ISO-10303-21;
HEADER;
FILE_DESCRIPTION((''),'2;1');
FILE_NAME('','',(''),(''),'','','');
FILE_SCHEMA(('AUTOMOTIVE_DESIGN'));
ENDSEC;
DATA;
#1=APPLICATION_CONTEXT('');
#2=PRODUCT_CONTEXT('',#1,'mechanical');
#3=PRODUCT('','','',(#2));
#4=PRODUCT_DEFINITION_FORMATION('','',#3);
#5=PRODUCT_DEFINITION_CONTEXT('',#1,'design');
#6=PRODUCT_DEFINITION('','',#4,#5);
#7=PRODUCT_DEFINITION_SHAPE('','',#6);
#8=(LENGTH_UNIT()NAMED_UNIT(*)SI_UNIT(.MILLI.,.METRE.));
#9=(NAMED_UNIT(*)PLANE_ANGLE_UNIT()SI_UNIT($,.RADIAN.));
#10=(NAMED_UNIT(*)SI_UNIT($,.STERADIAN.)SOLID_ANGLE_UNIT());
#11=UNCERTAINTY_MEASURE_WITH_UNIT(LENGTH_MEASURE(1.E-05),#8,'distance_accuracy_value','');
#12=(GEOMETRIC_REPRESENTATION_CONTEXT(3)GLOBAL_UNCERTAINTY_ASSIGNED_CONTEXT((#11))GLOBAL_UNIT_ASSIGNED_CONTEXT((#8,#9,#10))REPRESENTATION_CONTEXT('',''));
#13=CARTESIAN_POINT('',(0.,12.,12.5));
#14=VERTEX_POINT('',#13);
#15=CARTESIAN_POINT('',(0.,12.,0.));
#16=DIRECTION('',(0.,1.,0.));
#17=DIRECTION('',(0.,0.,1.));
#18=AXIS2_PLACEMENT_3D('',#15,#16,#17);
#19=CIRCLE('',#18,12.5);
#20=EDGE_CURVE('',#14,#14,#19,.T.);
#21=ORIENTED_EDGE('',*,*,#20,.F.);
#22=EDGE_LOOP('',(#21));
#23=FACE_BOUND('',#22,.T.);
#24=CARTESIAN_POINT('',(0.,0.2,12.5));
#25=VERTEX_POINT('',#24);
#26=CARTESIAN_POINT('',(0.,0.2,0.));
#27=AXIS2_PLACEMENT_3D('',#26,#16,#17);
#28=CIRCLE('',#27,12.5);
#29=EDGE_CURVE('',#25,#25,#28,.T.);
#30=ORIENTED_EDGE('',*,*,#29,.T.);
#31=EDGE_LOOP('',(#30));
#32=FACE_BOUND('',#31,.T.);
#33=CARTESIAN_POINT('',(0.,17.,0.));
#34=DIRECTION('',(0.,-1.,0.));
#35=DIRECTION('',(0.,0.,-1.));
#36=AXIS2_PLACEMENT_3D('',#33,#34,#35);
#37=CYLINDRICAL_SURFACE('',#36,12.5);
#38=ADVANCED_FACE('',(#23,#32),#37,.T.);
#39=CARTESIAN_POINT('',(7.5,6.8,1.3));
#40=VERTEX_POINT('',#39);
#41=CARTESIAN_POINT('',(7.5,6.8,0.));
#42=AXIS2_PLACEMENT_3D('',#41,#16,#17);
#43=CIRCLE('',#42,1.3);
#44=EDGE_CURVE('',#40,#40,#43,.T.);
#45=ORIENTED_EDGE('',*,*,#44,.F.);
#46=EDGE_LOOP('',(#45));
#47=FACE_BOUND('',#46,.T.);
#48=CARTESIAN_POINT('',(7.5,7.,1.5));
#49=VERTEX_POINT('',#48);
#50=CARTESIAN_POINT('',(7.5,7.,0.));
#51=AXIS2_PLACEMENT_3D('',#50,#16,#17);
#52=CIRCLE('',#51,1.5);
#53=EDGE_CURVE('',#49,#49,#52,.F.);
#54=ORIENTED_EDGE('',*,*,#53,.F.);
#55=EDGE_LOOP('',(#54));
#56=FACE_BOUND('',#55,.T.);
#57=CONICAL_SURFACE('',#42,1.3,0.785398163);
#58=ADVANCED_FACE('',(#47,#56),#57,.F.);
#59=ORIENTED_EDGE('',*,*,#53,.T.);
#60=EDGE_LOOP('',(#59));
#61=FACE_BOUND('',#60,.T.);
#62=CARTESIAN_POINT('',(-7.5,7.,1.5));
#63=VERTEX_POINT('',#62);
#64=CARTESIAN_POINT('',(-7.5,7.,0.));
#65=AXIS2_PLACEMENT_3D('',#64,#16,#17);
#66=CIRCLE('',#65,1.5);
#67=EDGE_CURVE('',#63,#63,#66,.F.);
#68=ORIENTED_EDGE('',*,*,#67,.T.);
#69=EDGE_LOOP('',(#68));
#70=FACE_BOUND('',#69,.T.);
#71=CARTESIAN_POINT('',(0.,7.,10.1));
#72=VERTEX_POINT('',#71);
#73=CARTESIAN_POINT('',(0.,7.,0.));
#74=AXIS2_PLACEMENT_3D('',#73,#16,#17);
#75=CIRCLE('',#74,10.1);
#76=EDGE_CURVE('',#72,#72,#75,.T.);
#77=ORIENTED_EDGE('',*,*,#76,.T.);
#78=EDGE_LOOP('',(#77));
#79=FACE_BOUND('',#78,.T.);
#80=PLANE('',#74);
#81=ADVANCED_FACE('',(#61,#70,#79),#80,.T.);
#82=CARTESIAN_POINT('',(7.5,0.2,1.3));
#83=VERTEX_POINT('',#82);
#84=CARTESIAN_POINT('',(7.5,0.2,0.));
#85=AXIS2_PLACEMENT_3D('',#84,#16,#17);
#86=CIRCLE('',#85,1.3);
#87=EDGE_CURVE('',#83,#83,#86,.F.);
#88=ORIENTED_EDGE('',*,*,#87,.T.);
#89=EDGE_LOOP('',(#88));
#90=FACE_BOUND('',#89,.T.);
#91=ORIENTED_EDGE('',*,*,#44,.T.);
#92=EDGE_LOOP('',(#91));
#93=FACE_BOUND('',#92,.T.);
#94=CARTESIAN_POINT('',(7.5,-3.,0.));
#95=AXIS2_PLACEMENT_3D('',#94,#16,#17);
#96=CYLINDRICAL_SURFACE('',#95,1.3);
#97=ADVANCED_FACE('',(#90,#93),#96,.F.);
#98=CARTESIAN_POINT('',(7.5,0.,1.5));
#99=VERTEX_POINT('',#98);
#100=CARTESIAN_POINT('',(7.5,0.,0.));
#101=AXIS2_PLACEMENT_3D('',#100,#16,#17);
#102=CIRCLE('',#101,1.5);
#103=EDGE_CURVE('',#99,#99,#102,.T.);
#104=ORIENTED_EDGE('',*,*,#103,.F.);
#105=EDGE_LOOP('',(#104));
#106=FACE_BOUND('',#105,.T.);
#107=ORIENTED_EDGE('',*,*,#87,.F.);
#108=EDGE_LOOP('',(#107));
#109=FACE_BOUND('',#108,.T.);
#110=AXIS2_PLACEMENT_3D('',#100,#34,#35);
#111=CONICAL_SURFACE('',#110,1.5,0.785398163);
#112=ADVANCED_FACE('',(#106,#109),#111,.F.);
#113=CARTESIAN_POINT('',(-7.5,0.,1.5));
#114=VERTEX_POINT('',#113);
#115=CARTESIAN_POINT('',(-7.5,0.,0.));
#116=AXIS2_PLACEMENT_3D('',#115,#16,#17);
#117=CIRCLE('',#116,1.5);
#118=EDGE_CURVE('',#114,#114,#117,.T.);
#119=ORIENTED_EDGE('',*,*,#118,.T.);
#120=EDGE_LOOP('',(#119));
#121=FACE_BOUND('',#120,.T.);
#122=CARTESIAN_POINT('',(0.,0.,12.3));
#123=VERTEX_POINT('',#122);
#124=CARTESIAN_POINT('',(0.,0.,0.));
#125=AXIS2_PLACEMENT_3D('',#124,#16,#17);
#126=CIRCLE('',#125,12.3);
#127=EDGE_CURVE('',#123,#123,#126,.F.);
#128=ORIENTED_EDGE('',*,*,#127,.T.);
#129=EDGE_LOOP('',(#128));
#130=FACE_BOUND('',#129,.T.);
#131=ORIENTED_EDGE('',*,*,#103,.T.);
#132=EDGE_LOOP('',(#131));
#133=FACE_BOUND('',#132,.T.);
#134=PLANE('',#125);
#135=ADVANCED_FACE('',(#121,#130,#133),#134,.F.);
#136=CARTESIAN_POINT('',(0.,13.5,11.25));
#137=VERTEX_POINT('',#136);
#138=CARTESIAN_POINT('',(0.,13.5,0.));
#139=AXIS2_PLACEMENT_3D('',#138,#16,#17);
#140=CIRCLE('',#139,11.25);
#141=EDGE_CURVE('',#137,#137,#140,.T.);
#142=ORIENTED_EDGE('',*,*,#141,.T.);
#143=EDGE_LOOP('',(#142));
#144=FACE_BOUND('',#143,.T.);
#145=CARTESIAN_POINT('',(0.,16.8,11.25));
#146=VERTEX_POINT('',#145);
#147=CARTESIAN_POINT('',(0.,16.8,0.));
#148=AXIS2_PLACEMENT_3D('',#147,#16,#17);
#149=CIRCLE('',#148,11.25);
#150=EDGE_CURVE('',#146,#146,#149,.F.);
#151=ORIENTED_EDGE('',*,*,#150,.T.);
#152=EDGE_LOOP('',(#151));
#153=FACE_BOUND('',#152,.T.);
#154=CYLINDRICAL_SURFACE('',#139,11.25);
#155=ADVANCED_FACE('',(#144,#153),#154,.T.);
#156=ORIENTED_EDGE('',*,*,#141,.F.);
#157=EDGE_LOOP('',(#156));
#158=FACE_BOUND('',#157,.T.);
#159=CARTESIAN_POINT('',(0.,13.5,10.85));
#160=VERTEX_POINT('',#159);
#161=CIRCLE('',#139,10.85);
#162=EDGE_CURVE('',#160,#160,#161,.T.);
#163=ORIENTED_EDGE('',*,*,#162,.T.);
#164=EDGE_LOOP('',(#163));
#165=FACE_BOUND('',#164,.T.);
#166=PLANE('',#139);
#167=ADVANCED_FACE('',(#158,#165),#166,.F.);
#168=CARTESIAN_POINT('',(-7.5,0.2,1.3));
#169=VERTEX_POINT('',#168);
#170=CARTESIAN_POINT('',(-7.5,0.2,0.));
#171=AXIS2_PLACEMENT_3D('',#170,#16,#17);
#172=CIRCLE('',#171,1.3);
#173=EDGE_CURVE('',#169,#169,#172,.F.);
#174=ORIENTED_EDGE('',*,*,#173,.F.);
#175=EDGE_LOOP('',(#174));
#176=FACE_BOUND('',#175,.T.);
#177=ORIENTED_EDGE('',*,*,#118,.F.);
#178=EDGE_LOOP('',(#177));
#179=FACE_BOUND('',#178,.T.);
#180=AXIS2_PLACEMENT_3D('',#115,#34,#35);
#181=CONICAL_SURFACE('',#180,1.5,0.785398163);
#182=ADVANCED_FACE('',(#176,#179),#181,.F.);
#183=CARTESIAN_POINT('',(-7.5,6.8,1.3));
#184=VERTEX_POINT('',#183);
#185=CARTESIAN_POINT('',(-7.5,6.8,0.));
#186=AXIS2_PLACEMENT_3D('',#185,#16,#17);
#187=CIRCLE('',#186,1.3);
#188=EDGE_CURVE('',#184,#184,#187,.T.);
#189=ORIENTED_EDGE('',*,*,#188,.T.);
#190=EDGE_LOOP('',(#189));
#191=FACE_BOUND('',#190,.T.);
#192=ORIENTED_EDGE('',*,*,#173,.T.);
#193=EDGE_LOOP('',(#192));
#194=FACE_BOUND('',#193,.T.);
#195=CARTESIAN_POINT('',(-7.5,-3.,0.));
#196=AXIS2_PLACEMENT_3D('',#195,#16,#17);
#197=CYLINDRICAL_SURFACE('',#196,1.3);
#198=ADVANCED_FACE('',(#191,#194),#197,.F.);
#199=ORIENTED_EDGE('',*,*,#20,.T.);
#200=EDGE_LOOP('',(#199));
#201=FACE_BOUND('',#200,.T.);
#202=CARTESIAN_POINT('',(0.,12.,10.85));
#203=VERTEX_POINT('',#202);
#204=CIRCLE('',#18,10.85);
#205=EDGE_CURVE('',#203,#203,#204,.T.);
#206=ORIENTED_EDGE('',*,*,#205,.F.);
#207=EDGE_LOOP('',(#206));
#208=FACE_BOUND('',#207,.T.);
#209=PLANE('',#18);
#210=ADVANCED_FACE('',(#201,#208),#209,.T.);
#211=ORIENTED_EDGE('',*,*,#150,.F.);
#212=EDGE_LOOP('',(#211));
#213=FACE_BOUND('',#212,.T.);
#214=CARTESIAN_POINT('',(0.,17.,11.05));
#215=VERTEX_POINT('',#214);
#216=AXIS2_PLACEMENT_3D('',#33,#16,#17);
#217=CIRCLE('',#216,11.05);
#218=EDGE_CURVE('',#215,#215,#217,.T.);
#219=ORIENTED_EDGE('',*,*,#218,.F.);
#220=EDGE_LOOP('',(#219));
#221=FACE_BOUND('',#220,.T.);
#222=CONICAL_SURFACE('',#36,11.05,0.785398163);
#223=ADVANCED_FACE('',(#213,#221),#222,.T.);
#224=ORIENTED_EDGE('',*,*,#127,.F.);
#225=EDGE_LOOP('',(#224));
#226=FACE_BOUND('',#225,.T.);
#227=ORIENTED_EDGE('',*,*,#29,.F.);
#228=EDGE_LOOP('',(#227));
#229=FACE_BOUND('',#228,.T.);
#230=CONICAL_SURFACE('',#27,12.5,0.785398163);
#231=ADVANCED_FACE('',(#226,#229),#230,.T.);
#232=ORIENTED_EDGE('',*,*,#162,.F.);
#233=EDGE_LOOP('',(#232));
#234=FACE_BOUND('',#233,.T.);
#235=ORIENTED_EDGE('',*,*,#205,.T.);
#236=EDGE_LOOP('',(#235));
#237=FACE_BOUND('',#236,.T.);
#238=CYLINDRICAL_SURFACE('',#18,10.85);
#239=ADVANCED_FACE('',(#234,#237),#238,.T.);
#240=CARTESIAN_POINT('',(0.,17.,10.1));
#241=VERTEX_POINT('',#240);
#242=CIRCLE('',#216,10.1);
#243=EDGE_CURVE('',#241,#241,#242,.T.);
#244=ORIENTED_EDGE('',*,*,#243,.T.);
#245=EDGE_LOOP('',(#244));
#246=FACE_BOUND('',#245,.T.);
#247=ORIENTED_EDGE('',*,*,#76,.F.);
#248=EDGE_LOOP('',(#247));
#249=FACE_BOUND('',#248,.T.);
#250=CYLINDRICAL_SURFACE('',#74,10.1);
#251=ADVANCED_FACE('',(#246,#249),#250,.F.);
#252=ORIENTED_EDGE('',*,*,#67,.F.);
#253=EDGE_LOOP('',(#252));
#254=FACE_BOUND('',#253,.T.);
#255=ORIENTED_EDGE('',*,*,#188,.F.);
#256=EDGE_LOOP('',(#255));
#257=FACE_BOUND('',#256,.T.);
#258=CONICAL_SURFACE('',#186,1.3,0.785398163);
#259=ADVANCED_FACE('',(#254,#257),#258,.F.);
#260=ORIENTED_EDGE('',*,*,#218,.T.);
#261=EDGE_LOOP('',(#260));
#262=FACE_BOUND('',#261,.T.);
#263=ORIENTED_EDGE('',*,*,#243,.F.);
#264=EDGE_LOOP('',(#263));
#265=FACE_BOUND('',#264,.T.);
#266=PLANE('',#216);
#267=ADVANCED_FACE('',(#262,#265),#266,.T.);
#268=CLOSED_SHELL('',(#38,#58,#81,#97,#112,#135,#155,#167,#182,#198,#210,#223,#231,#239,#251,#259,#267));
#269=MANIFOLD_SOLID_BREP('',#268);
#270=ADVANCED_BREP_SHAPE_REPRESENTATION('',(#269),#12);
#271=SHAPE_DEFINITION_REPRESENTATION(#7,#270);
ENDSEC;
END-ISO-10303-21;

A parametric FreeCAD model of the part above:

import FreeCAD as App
import Part
import Sketcher
from FreeCAD import Vector


def edges_at(feature, points):
    """Names of the edges that pass closest to the given points."""
    edges = feature.Shape.Edges
    near = lambda p: min(range(len(edges)), key=lambda i: edges[i].distToShape(Part.Vertex(*p))[0])
    return sorted({f"Edge{near(p) + 1}" for p in points})

doc = App.newDocument("Part")
body = doc.addObject("PartDesign::Body", "Body")

sketch1 = body.newObject("Sketcher::SketchObject", "Sketch")
sketch1.AttachmentSupport = (doc.getObject("XZ_Plane"), [""])
sketch1.MapMode = "FlatFace"
sketch1.addGeometry(Part.Circle(Vector(0, 0, 0), Vector(0, 0, 1), 12), False)
sketch1.addConstraint([
    Sketcher.Constraint("Coincident", 0, 3, -1, 1),
    Sketcher.Constraint("Diameter", 0, 25.0),
])
pad1 = body.newObject("PartDesign::Pad", "Pad")
pad1.Profile = sketch1
pad1.Length = 17
pad1.Reversed = True

sketch2 = body.newObject("Sketcher::SketchObject", "Sketch001")
sketch2.AttachmentSupport = (doc.getObject("XZ_Plane"), [""])
sketch2.MapMode = "FlatFace"
sketch2.AttachmentOffset = App.Placement(Vector(0, 0, -17), App.Rotation())
sketch2.addGeometry(Part.Circle(Vector(0, 0, 0), Vector(0, 0, 1), 10), False)
sketch2.addConstraint([
    Sketcher.Constraint("Coincident", 0, 3, -1, 1),
    Sketcher.Constraint("Diameter", 0, 20.2),
])
pocket1 = body.newObject("PartDesign::Pocket", "Pocket")
pocket1.Profile = sketch2
pocket1.Length = 10
pocket1.Reversed = True

sketch3 = body.newObject("Sketcher::SketchObject", "Sketch002")
sketch3.AttachmentSupport = (doc.getObject("XZ_Plane"), [""])
sketch3.MapMode = "FlatFace"
sketch3.AttachmentOffset = App.Placement(Vector(0, 0, -7), App.Rotation())
sketch3.addGeometry([
    Part.Circle(Vector(7.5, 0, 0), Vector(0, 0, 1), 1.3),
    Part.Circle(Vector(-7.5, 0, 0), Vector(0, 0, 1), 1.3),
], False)
sketch3.addConstraint([
    Sketcher.Constraint("Equal", 0, 1),
    Sketcher.Constraint("Symmetric", 0, 3, 1, 3, -1, 1),
    Sketcher.Constraint("PointOnObject", 0, 3, -1),
    Sketcher.Constraint("Diameter", 0, 2.6),
    Sketcher.Constraint("DistanceX", 1, 3, 0, 3, 15.0),
])
pocket2 = body.newObject("PartDesign::Pocket", "Pocket001")
pocket2.Profile = sketch3
pocket2.Length = 10
pocket2.Reversed = True

sketch4 = body.newObject("Sketcher::SketchObject", "Sketch003")
sketch4.AttachmentSupport = (doc.getObject("XZ_Plane"), [""])
sketch4.MapMode = "FlatFace"
sketch4.AttachmentOffset = App.Placement(Vector(0, 0, -12), App.Rotation())
sketch4.addGeometry([
    Part.Circle(Vector(0, 0, 0), Vector(0, 0, 1), 12),
    Part.Circle(Vector(0, 0, 0), Vector(0, 0, 1), 11),
], False)
sketch4.addConstraint([
    Sketcher.Constraint("Coincident", 0, 3, -1, 1),
    Sketcher.Constraint("Coincident", 1, 3, -1, 1),
    Sketcher.Constraint("Diameter", 0, 25.0),
    Sketcher.Constraint("Diameter", 1, 21.7),
])
pocket3 = body.newObject("PartDesign::Pocket", "Pocket002")
pocket3.Profile = sketch4
pocket3.Length = 5

sketch5 = body.newObject("Sketcher::SketchObject", "Sketch004")
sketch5.AttachmentSupport = (doc.getObject("XZ_Plane"), [""])
sketch5.MapMode = "FlatFace"
sketch5.AttachmentOffset = App.Placement(Vector(0, 0, -13.5), App.Rotation())
sketch5.addGeometry([
    Part.Circle(Vector(0, 0, 0), Vector(0, 0, 1), 11),
    Part.Circle(Vector(0, 0, 0), Vector(0, 0, 1), 11),
], False)
sketch5.addConstraint([
    Sketcher.Constraint("Coincident", 0, 3, -1, 1),
    Sketcher.Constraint("Coincident", 1, 3, -1, 1),
    Sketcher.Constraint("Diameter", 0, 22.5),
    Sketcher.Constraint("Diameter", 1, 21.7),
])
pad2 = body.newObject("PartDesign::Pad", "Pad001")
pad2.Profile = sketch5
pad2.Length = 3.5
pad2.Reversed = True
doc.recompute()

chamfer = body.newObject("PartDesign::Chamfer", "Chamfer")
chamfer.Base = (pad2, edges_at(pad2, [
    (7.5, 0, -1.3),
    (7.5, 7, -1.3),
    (-7.5, 0, -1.3),
    (-7.5, 7, -1.3),
    (0, 0, -12.5),
    (0, 17, -11.25),
]))
chamfer.Size = 0.2

doc.recompute()
